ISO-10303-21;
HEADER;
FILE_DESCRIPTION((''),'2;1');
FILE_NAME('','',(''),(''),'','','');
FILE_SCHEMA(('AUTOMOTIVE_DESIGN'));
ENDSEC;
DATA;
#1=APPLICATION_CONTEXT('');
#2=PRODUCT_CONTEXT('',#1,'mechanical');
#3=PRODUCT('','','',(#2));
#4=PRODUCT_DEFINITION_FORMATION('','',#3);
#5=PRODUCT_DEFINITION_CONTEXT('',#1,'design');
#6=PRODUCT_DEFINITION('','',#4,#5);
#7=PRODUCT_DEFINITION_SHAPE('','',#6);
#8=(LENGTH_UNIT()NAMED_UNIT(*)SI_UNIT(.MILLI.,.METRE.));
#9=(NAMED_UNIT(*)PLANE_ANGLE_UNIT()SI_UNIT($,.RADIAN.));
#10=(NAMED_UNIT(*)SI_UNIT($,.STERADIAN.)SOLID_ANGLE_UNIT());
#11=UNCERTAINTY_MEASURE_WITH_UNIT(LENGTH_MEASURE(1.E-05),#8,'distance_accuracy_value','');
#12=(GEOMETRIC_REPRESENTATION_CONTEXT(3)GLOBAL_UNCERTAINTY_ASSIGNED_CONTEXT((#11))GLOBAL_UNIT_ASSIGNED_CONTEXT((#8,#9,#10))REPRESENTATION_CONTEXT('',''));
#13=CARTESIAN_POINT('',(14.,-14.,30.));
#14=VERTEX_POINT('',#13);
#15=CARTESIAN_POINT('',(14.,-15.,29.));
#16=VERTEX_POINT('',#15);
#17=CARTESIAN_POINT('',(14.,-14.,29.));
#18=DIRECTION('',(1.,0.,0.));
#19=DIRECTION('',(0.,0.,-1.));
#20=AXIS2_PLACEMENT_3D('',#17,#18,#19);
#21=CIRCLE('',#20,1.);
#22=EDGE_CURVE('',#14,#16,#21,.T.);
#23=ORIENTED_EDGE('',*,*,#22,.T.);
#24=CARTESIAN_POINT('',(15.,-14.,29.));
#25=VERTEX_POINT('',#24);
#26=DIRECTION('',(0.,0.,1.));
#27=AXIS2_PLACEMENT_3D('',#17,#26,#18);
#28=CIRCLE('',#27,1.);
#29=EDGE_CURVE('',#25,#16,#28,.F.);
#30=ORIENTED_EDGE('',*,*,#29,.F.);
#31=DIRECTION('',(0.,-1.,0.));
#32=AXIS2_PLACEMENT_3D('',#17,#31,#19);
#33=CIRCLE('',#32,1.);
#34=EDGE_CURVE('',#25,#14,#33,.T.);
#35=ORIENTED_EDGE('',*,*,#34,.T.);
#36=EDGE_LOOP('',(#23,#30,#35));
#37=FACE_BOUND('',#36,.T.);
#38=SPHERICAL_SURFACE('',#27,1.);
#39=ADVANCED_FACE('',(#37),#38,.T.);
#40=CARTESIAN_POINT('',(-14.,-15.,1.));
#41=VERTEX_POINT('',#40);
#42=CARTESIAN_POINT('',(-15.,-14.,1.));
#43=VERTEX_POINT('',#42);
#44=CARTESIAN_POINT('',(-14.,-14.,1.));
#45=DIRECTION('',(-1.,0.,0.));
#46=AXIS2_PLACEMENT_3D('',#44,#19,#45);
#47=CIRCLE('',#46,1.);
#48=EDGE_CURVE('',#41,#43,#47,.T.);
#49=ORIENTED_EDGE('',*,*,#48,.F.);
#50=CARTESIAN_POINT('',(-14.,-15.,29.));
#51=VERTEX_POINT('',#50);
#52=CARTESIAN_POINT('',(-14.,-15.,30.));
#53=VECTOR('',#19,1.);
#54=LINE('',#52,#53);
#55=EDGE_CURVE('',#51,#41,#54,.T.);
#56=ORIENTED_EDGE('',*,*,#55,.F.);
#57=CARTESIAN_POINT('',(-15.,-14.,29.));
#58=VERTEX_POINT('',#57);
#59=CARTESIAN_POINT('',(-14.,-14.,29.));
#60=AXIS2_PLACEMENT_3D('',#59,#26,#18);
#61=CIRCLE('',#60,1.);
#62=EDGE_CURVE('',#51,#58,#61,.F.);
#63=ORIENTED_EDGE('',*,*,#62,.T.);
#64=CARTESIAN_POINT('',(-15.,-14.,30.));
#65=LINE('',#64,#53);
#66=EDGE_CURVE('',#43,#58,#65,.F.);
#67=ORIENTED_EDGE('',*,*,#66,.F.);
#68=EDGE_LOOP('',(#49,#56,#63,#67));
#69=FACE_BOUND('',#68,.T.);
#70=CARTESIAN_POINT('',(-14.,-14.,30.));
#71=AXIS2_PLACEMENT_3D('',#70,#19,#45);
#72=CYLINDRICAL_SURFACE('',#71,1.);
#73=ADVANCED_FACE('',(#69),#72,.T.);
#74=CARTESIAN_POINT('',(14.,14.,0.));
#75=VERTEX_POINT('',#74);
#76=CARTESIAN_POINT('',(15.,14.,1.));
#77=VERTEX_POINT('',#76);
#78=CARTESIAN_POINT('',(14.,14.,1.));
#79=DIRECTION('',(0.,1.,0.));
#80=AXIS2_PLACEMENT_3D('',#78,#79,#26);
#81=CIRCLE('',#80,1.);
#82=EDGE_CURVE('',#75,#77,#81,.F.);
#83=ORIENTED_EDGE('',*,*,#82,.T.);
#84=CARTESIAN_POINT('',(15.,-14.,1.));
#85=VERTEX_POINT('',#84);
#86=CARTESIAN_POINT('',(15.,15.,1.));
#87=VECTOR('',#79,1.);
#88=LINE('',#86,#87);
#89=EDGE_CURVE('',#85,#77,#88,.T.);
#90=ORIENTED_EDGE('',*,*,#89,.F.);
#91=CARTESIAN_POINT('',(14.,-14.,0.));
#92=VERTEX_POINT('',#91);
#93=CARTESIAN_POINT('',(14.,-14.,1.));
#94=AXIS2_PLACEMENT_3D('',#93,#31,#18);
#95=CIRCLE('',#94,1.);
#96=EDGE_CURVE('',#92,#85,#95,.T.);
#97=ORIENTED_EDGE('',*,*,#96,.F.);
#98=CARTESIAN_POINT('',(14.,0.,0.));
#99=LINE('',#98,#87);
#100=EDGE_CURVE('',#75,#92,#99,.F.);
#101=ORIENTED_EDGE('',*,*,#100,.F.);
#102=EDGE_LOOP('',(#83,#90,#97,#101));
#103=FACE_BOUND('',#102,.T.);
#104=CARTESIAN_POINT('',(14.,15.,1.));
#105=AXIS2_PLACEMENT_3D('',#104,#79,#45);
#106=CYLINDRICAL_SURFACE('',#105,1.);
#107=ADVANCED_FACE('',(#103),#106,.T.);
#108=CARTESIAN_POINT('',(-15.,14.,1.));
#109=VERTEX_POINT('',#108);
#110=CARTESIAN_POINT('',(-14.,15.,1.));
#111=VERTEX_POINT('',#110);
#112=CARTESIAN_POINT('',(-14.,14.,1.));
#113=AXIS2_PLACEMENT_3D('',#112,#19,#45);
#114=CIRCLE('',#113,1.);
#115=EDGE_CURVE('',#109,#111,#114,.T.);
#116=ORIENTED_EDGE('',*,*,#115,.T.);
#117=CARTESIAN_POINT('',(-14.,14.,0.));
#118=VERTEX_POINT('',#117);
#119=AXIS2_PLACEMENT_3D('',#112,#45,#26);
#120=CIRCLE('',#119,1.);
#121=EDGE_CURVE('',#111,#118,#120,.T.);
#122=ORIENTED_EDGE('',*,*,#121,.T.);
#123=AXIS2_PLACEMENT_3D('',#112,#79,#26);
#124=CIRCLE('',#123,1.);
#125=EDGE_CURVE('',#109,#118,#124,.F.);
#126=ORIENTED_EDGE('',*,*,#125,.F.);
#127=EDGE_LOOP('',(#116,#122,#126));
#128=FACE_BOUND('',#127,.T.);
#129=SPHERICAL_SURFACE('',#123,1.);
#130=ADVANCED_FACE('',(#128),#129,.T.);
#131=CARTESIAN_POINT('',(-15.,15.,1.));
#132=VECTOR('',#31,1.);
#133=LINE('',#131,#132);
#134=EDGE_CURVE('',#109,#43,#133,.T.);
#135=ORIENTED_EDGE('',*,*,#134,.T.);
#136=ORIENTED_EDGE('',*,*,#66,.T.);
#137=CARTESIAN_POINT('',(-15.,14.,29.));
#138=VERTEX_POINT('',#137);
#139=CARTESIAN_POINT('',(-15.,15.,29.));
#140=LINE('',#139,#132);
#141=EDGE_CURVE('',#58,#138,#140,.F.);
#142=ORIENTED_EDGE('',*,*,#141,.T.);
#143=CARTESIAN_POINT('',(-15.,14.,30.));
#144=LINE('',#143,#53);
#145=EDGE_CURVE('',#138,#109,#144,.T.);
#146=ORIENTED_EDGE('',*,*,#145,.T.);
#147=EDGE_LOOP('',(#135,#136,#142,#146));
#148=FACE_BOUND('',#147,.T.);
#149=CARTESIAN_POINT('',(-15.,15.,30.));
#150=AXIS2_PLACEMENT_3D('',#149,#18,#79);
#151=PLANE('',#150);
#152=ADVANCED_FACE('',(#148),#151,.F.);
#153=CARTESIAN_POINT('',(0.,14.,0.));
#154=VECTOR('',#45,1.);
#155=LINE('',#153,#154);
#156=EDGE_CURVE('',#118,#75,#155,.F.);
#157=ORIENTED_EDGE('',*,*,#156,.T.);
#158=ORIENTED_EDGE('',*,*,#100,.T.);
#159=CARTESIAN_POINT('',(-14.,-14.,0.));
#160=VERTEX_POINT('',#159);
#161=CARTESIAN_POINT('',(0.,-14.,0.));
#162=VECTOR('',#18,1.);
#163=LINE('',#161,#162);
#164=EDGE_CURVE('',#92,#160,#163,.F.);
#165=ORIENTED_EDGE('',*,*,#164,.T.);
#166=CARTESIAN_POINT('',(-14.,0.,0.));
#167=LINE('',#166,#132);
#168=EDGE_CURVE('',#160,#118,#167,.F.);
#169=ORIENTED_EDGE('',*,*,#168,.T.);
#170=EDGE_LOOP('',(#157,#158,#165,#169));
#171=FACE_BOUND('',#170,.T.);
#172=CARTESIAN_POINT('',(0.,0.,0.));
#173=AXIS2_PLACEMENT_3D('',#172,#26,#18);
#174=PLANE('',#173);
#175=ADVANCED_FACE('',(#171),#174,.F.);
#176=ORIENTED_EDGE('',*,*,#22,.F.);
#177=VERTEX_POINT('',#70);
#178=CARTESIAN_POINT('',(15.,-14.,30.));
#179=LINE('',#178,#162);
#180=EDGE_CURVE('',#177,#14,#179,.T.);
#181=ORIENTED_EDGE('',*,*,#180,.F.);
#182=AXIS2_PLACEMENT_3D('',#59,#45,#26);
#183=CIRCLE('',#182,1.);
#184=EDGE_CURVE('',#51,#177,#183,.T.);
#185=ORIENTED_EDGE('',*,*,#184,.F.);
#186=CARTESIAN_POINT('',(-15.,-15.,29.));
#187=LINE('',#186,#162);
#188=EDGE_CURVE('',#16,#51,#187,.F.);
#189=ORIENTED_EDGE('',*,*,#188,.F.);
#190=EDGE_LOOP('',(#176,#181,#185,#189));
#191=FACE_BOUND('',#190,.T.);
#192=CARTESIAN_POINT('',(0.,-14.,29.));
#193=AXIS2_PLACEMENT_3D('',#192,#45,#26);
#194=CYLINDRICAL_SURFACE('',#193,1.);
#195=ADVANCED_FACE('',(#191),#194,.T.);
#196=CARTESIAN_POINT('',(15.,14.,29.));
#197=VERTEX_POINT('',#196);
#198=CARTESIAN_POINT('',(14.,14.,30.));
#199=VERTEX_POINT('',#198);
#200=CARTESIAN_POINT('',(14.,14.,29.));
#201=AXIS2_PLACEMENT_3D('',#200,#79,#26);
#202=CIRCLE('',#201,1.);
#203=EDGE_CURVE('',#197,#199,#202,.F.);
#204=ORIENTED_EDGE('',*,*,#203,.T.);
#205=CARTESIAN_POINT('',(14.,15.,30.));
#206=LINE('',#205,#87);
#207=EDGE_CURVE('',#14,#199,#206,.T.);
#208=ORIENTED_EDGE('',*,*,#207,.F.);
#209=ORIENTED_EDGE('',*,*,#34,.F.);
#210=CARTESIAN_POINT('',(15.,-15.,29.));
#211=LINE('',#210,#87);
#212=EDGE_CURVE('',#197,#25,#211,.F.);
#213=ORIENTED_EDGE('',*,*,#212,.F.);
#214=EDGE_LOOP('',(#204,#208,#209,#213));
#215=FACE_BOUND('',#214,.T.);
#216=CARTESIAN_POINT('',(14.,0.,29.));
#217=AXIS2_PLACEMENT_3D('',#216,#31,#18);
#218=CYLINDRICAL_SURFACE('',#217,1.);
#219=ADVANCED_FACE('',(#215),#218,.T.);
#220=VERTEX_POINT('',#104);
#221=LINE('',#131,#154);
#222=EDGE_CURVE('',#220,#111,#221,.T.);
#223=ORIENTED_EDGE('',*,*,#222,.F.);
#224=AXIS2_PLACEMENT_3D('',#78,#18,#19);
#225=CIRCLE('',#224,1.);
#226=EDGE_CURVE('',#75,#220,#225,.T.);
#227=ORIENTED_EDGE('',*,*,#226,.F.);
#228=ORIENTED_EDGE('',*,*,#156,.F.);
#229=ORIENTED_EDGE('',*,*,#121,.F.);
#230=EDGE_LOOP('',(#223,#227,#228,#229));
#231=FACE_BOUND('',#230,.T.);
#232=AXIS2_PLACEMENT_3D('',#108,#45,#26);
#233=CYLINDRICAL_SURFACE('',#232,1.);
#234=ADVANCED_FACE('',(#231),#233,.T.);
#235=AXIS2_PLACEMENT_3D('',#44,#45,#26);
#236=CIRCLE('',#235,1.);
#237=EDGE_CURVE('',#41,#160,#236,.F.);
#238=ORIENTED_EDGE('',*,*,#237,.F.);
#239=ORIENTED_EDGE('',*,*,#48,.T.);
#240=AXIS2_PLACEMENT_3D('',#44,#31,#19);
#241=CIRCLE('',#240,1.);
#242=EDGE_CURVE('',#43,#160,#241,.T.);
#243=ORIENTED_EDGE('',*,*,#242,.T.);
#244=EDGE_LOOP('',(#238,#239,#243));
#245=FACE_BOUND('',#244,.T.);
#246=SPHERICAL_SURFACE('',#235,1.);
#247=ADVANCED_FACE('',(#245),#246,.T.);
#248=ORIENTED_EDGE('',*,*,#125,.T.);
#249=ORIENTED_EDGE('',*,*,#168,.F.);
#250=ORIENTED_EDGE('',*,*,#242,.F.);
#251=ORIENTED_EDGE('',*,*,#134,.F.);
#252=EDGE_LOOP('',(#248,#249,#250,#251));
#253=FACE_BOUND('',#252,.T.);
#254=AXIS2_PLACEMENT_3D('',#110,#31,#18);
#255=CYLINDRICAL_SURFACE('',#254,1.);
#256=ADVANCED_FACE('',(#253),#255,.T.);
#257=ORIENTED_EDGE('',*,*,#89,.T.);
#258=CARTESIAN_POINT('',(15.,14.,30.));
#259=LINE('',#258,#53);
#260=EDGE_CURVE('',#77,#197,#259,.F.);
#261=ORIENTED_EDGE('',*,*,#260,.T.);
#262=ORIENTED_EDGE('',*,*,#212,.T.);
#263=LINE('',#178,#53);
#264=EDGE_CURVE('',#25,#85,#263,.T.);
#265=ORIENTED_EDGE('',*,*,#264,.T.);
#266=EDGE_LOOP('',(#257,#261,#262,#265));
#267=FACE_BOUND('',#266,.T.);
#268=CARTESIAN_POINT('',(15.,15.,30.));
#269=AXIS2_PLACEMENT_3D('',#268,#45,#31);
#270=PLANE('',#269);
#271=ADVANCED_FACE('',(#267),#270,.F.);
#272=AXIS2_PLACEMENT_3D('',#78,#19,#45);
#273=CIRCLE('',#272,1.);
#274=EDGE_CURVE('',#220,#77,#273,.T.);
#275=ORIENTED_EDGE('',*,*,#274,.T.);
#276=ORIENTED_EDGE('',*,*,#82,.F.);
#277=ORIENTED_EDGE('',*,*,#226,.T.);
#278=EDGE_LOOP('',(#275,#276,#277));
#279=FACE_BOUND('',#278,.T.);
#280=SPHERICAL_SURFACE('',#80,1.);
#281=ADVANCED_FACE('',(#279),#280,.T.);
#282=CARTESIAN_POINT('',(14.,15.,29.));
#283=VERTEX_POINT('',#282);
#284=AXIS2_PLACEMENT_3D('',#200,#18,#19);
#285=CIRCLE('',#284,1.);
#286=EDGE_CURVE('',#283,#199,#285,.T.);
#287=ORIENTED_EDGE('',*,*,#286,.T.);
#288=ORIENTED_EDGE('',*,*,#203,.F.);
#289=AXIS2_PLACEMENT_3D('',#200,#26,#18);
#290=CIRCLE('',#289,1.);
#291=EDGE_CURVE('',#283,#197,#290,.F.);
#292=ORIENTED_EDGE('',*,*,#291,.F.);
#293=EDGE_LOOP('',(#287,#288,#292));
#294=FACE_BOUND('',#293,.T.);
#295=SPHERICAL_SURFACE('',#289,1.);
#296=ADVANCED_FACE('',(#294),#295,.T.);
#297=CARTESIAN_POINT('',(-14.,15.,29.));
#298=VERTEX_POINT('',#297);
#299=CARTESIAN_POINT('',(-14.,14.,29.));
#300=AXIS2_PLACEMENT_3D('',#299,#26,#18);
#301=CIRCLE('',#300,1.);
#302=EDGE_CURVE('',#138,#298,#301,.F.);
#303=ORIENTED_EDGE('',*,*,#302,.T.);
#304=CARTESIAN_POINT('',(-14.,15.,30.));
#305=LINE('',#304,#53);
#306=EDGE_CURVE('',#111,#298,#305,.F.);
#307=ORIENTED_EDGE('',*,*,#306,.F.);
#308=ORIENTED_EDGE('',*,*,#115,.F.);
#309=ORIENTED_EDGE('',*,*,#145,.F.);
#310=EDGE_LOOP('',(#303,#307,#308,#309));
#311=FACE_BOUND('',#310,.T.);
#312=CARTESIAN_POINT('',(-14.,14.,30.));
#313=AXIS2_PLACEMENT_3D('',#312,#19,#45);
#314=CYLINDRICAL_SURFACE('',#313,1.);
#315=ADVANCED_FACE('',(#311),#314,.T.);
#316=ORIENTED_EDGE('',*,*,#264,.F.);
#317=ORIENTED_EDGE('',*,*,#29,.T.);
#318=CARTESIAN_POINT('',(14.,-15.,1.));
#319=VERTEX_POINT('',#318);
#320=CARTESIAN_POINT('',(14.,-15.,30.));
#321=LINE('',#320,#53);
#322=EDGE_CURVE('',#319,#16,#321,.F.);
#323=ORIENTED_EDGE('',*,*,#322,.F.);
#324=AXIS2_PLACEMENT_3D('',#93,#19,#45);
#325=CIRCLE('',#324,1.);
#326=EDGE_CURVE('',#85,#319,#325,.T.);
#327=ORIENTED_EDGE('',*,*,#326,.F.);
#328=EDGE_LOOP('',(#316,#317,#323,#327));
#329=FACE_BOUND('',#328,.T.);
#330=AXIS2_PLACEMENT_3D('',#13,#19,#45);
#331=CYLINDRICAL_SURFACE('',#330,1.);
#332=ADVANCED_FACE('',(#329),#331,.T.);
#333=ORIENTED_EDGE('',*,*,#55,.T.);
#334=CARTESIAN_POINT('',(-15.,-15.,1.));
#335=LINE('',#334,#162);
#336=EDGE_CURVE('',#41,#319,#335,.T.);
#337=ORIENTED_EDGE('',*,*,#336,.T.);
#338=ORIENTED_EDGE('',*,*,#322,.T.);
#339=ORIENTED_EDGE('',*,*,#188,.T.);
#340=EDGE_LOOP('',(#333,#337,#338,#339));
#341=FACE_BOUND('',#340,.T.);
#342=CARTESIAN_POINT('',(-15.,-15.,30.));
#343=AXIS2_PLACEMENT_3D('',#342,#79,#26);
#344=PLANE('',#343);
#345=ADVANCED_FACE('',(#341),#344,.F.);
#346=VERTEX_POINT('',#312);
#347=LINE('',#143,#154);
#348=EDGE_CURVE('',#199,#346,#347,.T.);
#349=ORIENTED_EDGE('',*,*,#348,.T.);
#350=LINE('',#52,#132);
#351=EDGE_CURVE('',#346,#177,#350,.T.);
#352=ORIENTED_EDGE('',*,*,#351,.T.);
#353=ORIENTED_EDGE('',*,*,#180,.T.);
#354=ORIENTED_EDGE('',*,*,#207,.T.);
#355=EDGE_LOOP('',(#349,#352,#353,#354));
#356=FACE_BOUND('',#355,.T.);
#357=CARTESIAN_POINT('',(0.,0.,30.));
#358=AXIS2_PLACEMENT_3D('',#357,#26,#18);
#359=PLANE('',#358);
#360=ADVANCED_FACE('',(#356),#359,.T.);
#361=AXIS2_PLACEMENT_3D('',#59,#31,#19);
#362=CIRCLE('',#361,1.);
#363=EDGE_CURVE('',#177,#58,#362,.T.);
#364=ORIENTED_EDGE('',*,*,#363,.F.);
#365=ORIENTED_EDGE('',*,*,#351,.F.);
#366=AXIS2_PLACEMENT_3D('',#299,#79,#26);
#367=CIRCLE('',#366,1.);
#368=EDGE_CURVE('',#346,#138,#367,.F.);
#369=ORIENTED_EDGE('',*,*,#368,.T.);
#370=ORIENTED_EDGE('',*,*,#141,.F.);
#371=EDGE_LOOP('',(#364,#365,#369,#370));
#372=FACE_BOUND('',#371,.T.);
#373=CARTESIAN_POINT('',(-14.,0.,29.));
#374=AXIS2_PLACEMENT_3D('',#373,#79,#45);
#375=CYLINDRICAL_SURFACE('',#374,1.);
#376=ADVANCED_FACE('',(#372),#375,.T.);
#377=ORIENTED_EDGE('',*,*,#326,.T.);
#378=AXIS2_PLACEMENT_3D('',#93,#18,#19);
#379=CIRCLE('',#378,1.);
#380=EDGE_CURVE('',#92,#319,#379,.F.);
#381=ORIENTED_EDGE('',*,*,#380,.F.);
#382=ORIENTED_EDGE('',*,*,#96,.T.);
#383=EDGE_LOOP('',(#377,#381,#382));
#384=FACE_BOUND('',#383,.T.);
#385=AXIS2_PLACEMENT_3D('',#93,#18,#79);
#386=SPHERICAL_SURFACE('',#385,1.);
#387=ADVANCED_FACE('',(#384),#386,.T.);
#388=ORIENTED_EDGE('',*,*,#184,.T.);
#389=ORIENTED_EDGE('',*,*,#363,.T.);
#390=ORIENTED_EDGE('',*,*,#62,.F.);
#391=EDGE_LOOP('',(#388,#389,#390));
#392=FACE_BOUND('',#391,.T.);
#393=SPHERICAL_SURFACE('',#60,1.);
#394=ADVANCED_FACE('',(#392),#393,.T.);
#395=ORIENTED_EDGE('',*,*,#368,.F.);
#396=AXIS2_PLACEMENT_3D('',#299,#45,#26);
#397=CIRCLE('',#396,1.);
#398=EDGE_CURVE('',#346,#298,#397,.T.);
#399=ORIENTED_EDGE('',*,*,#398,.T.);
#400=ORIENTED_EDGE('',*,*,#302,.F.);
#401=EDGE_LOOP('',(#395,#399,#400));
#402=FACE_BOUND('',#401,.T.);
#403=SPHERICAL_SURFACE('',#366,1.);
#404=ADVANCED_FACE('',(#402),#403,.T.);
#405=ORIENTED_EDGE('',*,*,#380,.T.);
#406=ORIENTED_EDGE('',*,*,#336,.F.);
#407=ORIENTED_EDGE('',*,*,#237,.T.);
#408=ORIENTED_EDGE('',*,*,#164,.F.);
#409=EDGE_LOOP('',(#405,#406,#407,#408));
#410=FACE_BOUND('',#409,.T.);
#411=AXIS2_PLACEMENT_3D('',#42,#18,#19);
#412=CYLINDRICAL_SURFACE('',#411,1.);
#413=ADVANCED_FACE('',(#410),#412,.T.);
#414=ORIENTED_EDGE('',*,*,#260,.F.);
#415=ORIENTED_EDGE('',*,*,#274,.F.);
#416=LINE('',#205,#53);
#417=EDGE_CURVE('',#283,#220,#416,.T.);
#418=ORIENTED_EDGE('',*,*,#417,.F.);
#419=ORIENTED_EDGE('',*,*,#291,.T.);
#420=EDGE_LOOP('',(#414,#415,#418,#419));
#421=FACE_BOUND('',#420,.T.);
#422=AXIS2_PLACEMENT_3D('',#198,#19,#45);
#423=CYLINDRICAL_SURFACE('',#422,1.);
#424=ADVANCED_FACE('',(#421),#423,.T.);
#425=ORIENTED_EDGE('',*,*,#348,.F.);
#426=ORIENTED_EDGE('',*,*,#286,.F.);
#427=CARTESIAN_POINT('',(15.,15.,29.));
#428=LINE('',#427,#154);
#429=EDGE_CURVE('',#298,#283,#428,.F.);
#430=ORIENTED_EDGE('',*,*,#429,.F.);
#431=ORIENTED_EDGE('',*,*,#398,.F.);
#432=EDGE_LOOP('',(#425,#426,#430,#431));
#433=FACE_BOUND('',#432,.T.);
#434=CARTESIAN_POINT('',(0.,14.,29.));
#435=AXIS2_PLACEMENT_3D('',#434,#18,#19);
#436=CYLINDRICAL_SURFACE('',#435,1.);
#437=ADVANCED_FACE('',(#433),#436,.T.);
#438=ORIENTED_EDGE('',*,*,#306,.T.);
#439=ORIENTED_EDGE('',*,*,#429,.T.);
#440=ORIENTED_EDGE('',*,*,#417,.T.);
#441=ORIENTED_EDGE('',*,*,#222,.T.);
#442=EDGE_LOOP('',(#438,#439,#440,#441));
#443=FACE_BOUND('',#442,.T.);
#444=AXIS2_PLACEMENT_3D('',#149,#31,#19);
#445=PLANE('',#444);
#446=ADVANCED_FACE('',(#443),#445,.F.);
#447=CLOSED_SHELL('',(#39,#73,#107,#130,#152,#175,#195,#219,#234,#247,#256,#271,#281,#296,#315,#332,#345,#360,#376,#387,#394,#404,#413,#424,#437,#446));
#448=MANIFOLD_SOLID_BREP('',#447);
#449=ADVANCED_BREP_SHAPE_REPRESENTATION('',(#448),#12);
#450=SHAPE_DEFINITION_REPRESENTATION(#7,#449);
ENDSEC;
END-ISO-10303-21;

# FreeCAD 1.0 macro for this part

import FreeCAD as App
import Part
import Sketcher

V = App.Vector
Q = App.Units.Quantity

doc = App.newDocument("Part")
body = doc.addObject("PartDesign::Body", "Body")

# Sketch on XY plane
sketch1 = doc.addObject("Sketcher::SketchObject", "Sketch")
body.addObject(sketch1)
sketch1.AttachmentSupport = (doc.XY_Plane, [""])
sketch1.MapMode = "FlatFace"
sketch1.addGeometry([
    Part.LineSegment(V(-15, 15, 0), V(-15, -15, 0)),
    Part.LineSegment(V(-15, -15, 0), V(15, -15, 0)),
    Part.LineSegment(V(15, -15, 0), V(15, 15, 0)),
    Part.LineSegment(V(15, 15, 0), V(-15, 15, 0)),
], False)
sketch1.addConstraint([
    Sketcher.Constraint("Coincident", 0, 2, 1, 1),
    Sketcher.Constraint("Coincident", 1, 2, 2, 1),
    Sketcher.Constraint("Coincident", 2, 2, 3, 1),
    Sketcher.Constraint("Coincident", 3, 2, 0, 1),
    Sketcher.Constraint("Vertical", 0),
    Sketcher.Constraint("Horizontal", 1),
    Sketcher.Constraint("Vertical", 2),
    Sketcher.Constraint("Horizontal", 3),
    Sketcher.Constraint("Symmetric", 0, 2, 2, 2, -1, 1),
    Sketcher.Constraint("Equal", 3, 0),
    Sketcher.Constraint("DistanceX", 1, 1, 1, 2, Q("30 mm")),
])
pad1 = doc.addObject("PartDesign::Pad", "Pad")
body.addObject(pad1)
pad1.Profile = sketch1
pad1.Length = 30
doc.recompute()

fillet = doc.addObject("PartDesign::Fillet", "Fillet")
body.addObject(fillet)
fillet.Base = (pad1, ["Edge1"])
fillet.UseAllEdges = True
fillet.Radius = 1

doc.recompute()
